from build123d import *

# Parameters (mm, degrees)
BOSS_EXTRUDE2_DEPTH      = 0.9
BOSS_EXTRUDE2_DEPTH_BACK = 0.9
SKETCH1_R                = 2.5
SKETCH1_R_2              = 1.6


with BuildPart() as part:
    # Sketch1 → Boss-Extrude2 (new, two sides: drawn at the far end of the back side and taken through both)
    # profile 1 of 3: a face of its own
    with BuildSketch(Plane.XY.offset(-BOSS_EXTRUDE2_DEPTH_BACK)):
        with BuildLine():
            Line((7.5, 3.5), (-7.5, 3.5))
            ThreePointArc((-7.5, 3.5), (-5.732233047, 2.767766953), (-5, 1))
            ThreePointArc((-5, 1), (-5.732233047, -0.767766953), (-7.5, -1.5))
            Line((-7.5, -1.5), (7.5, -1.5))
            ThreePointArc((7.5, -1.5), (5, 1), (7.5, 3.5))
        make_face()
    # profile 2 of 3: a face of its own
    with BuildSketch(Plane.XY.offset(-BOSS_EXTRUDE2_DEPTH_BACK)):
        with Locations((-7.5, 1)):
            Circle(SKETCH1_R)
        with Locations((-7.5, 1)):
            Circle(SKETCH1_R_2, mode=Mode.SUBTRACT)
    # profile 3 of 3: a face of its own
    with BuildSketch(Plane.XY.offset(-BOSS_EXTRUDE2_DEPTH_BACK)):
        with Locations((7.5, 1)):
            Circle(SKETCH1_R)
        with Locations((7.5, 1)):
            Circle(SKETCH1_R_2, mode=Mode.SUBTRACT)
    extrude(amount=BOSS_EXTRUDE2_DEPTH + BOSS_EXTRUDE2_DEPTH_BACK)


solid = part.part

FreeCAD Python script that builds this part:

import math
import FreeCAD as App
import Part
import Sketcher

V = App.Vector
Q = App.Units.Quantity

doc = App.newDocument("Part")
params = doc.addObject("Spreadsheet::Sheet", "Params")
for row, (alias, value) in enumerate([
    ("sketch1_diameter", "3.2 mm"),
    ("sketch1_radius", "2.5 mm"),
    ("sketch1_width", "15 mm"),
    ("pad1_length", "0.9 mm"),
    ("pad1_length2", "0.9 mm"),
], start=1):
    params.set(f"A{row}", alias)
    params.set(f"B{row}", "=" + value)
    params.setAlias(f"B{row}", alias)

body = doc.addObject("PartDesign::Body", "Body")

# Sketch on XY plane
sketch1 = body.newObject("Sketcher::SketchObject", "Sketch")
sketch1.AttachmentSupport = (doc.getObject("XY_Plane"), [""])
sketch1.MapMode = "FlatFace"
sketch1.addGeometry(Part.LineSegment(V(7.5, 3.5, 0), V(-7.5, 3.5, 0)), False)
sketch1.addGeometry(Part.ArcOfCircle(Part.Circle(V(-7.5, 1, 0), V(0, 0, 1), 2.5), math.radians(90), math.radians(270)), False)
sketch1.addGeometry(Part.LineSegment(V(-7.5, -1.5, 0), V(7.5, -1.5, 0)), False)
sketch1.addGeometry(Part.ArcOfCircle(Part.Circle(V(7.5, 1, 0), V(0, 0, 1), 2.5), math.radians(-90), math.radians(90)), False)
sketch1.addGeometry(Part.Circle(V(-7.5, 1, 0), V(0, 0, 1), 1.6), False)
sketch1.addGeometry(Part.Circle(V(7.5, 1, 0), V(0, 0, 1), 1.6), False)
sketch1.addConstraint(Sketcher.Constraint("Tangent", 0, 2, 1, 1))
sketch1.addConstraint(Sketcher.Constraint("Tangent", 1, 2, 2, 1))
sketch1.addConstraint(Sketcher.Constraint("Tangent", 2, 2, 3, 1))
sketch1.addConstraint(Sketcher.Constraint("Tangent", 3, 2, 0, 1))
sketch1.addConstraint(Sketcher.Constraint("Horizontal", 0))
sketch1.addConstraint(Sketcher.Constraint("Horizontal", 2))
sketch1.addConstraint(Sketcher.Constraint("Coincident", 4, 3, 1, 3))
sketch1.addConstraint(Sketcher.Constraint("Coincident", 5, 3, 3, 3))
sketch1.addConstraint(Sketcher.Constraint("Equal", 4, 5))
sketch1.addConstraint(Sketcher.Constraint("Diameter", 4, Q("3.2 mm")))
sketch1.addConstraint(Sketcher.Constraint("Radius", 1, Q("2.5 mm")))
sketch1.addConstraint(Sketcher.Constraint("DistanceX", 0, 2, 0, 1, Q("15 mm")))
sketch1.addConstraint(Sketcher.Constraint("DistanceY", -1, 1, 1, 3, Q("1 mm")))
sketch1.addConstraint(Sketcher.Constraint("DistanceX", 1, 3, -1, 1, Q("7.5 mm")))
sketch1.setExpression("Constraints[9]", "Params.sketch1_diameter")
sketch1.setExpression("Constraints[10]", "Params.sketch1_radius")
sketch1.setExpression("Constraints[11]", "Params.sketch1_width")
pad1 = body.newObject("PartDesign::Pad", "Pad")
pad1.Profile = sketch1
pad1.Type = "TwoLengths"
pad1.setExpression("Length", "Params.pad1_length")
pad1.setExpression("Length2", "Params.pad1_length2")

doc.recompute()
